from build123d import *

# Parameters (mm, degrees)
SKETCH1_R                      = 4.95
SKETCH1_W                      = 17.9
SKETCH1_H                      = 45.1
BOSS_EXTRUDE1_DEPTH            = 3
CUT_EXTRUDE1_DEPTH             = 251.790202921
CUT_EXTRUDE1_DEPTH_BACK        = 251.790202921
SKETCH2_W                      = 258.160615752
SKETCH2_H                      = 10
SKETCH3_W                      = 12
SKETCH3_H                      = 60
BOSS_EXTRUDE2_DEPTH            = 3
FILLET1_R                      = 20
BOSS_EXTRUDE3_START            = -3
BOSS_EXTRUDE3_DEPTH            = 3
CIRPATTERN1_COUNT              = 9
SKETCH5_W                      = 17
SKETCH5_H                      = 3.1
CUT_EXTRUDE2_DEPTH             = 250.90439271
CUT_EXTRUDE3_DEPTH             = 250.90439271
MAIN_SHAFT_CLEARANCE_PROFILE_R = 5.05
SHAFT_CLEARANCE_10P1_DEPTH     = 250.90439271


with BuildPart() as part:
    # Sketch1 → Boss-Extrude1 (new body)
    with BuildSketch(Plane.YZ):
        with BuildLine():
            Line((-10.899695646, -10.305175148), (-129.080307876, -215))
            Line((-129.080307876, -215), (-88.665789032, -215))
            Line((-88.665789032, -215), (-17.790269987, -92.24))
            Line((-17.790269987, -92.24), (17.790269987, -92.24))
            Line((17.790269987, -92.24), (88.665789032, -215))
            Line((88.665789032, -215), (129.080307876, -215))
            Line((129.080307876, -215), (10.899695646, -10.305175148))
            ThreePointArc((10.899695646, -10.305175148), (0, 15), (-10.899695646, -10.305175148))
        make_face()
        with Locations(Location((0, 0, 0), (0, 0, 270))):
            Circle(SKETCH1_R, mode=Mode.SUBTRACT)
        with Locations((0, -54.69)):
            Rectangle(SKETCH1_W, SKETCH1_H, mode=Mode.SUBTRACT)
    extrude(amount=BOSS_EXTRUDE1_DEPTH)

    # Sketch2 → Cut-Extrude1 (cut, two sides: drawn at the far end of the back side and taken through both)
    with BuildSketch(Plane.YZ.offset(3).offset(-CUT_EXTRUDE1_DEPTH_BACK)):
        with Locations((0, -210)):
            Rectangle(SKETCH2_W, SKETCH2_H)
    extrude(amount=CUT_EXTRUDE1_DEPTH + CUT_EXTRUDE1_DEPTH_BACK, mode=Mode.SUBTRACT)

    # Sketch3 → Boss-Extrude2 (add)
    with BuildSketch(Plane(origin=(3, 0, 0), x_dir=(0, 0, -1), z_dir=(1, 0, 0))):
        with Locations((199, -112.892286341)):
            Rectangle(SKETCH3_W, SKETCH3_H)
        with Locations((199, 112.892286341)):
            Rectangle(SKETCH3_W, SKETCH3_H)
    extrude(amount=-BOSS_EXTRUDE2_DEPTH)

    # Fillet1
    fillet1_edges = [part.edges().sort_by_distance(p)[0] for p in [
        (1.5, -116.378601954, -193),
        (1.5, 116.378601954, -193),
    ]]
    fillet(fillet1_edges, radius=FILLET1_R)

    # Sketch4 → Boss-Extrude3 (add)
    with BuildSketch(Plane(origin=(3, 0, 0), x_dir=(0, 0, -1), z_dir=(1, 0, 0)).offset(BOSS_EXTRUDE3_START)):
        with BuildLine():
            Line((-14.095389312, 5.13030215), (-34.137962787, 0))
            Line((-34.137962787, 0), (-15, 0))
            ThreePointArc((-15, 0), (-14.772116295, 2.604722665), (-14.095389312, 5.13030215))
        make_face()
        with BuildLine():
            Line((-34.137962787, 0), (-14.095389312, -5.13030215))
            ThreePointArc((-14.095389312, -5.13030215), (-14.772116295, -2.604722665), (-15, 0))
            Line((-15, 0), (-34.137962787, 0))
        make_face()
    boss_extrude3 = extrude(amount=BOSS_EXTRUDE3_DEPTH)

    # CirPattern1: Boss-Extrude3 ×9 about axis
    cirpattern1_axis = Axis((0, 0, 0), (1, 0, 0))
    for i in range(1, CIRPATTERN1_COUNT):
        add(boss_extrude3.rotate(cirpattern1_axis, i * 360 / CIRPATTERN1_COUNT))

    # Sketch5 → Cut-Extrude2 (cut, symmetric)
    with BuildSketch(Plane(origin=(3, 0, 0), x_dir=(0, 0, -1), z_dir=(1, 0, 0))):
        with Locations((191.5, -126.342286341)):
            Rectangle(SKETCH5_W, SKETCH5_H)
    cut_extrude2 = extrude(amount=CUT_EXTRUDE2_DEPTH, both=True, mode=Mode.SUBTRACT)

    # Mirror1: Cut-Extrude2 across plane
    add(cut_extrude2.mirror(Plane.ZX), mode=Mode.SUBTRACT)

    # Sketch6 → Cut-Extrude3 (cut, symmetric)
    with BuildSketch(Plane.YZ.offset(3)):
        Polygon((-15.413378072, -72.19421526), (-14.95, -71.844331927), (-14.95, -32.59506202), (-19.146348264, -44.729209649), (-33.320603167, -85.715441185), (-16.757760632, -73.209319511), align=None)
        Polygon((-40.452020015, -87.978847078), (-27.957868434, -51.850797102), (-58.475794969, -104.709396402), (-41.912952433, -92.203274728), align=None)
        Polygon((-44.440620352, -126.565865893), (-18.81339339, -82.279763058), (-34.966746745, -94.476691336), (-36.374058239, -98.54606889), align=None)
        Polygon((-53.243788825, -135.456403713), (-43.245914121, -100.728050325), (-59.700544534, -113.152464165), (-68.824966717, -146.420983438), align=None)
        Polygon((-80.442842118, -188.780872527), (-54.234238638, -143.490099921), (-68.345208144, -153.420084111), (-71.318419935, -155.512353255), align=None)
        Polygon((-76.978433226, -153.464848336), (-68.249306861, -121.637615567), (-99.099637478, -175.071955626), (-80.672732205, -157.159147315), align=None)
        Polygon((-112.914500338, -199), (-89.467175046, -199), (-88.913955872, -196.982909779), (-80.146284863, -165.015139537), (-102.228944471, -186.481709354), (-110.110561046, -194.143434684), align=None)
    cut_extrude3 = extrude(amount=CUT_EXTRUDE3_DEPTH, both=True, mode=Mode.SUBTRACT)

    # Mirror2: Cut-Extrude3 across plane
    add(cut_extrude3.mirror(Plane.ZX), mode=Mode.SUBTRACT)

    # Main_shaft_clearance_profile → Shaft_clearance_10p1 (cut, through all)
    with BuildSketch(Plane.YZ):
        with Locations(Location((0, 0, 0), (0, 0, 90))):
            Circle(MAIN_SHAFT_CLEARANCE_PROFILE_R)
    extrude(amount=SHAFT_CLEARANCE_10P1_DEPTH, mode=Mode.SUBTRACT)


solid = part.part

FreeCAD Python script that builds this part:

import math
import FreeCAD as App
import Part
import Sketcher
from FreeCAD import Vector
Q = App.Units.Quantity


def edges_at(feature, points):
    """Names of the edges that pass closest to the given points."""
    edges = feature.Shape.Edges
    near = lambda p: min(range(len(edges)), key=lambda i: edges[i].distToShape(Part.Vertex(*p))[0])
    return sorted({f"Edge{near(p) + 1}" for p in points})


def add_polygon(sketch, points):
    """Adds a closed chain of lines whose ends are joined by coincident constraints."""
    first, n = sketch.GeometryCount, len(points)
    for a, b in zip(points, points[1:] + points[:1]):
        sketch.addGeometry(Part.LineSegment(App.Vector(*a, 0), App.Vector(*b, 0)), False)
    for i in range(n):
        sketch.addConstraint(Sketcher.Constraint("Coincident", first + i, 2, first + (i + 1) % n, 1))

doc = App.newDocument("Part")
body = doc.addObject("PartDesign::Body", "Body")

sketch1 = body.newObject("Sketcher::SketchObject", "Sketch")
sketch1.AttachmentSupport = (doc.getObject("YZ_Plane"), [""])
sketch1.MapMode = "FlatFace"
sketch1.addGeometry(Part.LineSegment(Vector(-10.899696, -10.305175, 0), Vector(-129.080308, -215, 0)), False)
sketch1.addGeometry(Part.LineSegment(Vector(-129.080308, -215, 0), Vector(-88.665789, -215, 0)), False)
sketch1.addGeometry(Part.LineSegment(Vector(-88.665789, -215, 0), Vector(-17.79027, -92.24, 0)), False)
sketch1.addGeometry(Part.LineSegment(Vector(-17.79027, -92.24, 0), Vector(17.79027, -92.24, 0)), False)
sketch1.addGeometry(Part.LineSegment(Vector(17.79027, -92.24, 0), Vector(88.665789, -215, 0)), False)
sketch1.addGeometry(Part.LineSegment(Vector(88.665789, -215, 0), Vector(129.080308, -215, 0)), False)
sketch1.addGeometry(Part.LineSegment(Vector(129.080308, -215, 0), Vector(10.899696, -10.305175, 0)), False)
sketch1.addGeometry(Part.ArcOfCircle(Part.Circle(Vector(0, 0, 0), Vector(0, 0, 1), 15), math.radians(-43.39402), math.radians(223.39402)), False)
add_polygon(sketch1, [(8.95, -77.24), (-8.95, -77.24), (-8.95, -32.14), (8.95, -32.14)])
sketch1.addGeometry(Part.Circle(Vector(0, 0, 0), Vector(0, 0, 1), 4.95), False)
sketch1.addConstraint(Sketcher.Constraint("Coincident", 0, 2, 1, 1))
sketch1.addConstraint(Sketcher.Constraint("Coincident", 1, 2, 2, 1))
sketch1.addConstraint(Sketcher.Constraint("Coincident", 2, 2, 3, 1))
sketch1.addConstraint(Sketcher.Constraint("Coincident", 3, 2, 4, 1))
sketch1.addConstraint(Sketcher.Constraint("Coincident", 4, 2, 5, 1))
sketch1.addConstraint(Sketcher.Constraint("Coincident", 5, 2, 6, 1))
sketch1.addConstraint(Sketcher.Constraint("Coincident", 6, 2, 7, 1))
sketch1.addConstraint(Sketcher.Constraint("Coincident", 7, 2, 0, 1))
sketch1.addConstraint(Sketcher.Constraint("Horizontal", 1))
sketch1.addConstraint(Sketcher.Constraint("Horizontal", 3))
sketch1.addConstraint(Sketcher.Constraint("Horizontal", 5))
sketch1.addConstraint(Sketcher.Constraint("Horizontal", 8))
sketch1.addConstraint(Sketcher.Constraint("Vertical", 9))
sketch1.addConstraint(Sketcher.Constraint("Horizontal", 10))
sketch1.addConstraint(Sketcher.Constraint("Vertical", 11))
sketch1.addConstraint(Sketcher.Constraint("Coincident", 7, 3, -1, 1))
sketch1.addConstraint(Sketcher.Constraint("Coincident", 12, 3, -1, 1))
sketch1.addConstraint(Sketcher.Constraint("Symmetric", 1, 2, 4, 2, -2))
sketch1.addConstraint(Sketcher.Constraint("Parallel", 0, 2))
sketch1.addConstraint(Sketcher.Constraint("Parallel", 4, 6))
sketch1.addConstraint(Sketcher.Constraint("Horizontal", 6, 2, 7, 2))
sketch1.addConstraint(Sketcher.Constraint("Equal", 1, 5))
sketch1.addConstraint(Sketcher.Constraint("Radius", 7, Q("15 mm")))
sketch1.addConstraint(Sketcher.Constraint("Diameter", 12, Q("9.9 mm")))
sketch1.addConstraint(Sketcher.Constraint("Angle", 0, Q("-120 deg")))
sketch1.addConstraint(Sketcher.Constraint("DistanceX", 8, 2, 8, 1, Q("17.9 mm")))
sketch1.addConstraint(Sketcher.Constraint("DistanceY", 9, 1, 9, 2, Q("45.1 mm")))
sketch1.addConstraint(Sketcher.Constraint("DistanceY", 0, 2, -1, 1, Q("215 mm")))
sketch1.addConstraint(Sketcher.Constraint("DistanceY", 2, 2, 8, 2, Q("15 mm")))
sketch1.addConstraint(Sketcher.Constraint("DistanceY", 2, 2, -1, 1, Q("92.24 mm")))
sketch1.addConstraint(Sketcher.Constraint("DistanceX", 8, 2, -1, 1, Q("8.95 mm")))
sketch1.addConstraint(Sketcher.Constraint("DistanceX", 1, 1, 1, 2, Q("40.414519 mm")))
sketch1.addConstraint(Sketcher.Constraint("DistanceX", 3, 1, 3, 2, Q("35.58054 mm")))
pad1 = body.newObject("PartDesign::Pad", "Pad")
pad1.Profile = sketch1
pad1.Length = 3

sketch2 = body.newObject("Sketcher::SketchObject", "Sketch001")
sketch2.AttachmentSupport = (doc.getObject("YZ_Plane"), [""])
sketch2.MapMode = "FlatFace"
sketch2.AttachmentOffset = App.Placement(Vector(0, 0, 3), App.Rotation())
add_polygon(sketch2, [(-129.080308, -205), (-129.080308, -215), (129.080308, -215), (129.080308, -205)])
sketch2.addConstraint(Sketcher.Constraint("Vertical", 0))
sketch2.addConstraint(Sketcher.Constraint("Horizontal", 1))
sketch2.addConstraint(Sketcher.Constraint("Vertical", 2))
sketch2.addConstraint(Sketcher.Constraint("Horizontal", 3))
sketch2.addConstraint(Sketcher.Constraint("DistanceY", 0, 2, 0, 1, Q("10 mm")))
sketch2.addConstraint(Sketcher.Constraint("DistanceY", 0, 2, -1, 1, Q("215 mm")))
sketch2.addConstraint(Sketcher.Constraint("DistanceX", 1, 1, 1, 2, Q("258.160616 mm")))
sketch2.addConstraint(Sketcher.Constraint("DistanceX", 0, 2, -1, 1, Q("129.080308 mm")))
pocket1 = body.newObject("PartDesign::Pocket", "Pocket")
pocket1.Profile = sketch2
pocket1.Type = "ThroughAll"
pocket1.Midplane = True

sketch3 = body.newObject("Sketcher::SketchObject", "Sketch002")
sketch3.AttachmentSupport = (doc.getObject("YZ_Plane"), [""])
sketch3.MapMode = "FlatFace"
sketch3.AttachmentOffset = App.Placement(Vector(0, 0, 3), App.Rotation())
add_polygon(sketch3, [(-82.892286, -193), (-142.892286, -193), (-142.892286, -205), (-82.892286, -205)])
add_polygon(sketch3, [(142.892286, -193), (82.892286, -193), (82.892286, -205), (142.892286, -205)])
sketch3.addConstraint(Sketcher.Constraint("Horizontal", 0))
sketch3.addConstraint(Sketcher.Constraint("Vertical", 1))
sketch3.addConstraint(Sketcher.Constraint("Horizontal", 2))
sketch3.addConstraint(Sketcher.Constraint("Vertical", 3))
sketch3.addConstraint(Sketcher.Constraint("Horizontal", 4))
sketch3.addConstraint(Sketcher.Constraint("Vertical", 5))
sketch3.addConstraint(Sketcher.Constraint("Horizontal", 6))
sketch3.addConstraint(Sketcher.Constraint("Vertical", 7))
sketch3.addConstraint(Sketcher.Constraint("Symmetric", 3, 2, 4, 2, -2))
sketch3.addConstraint(Sketcher.Constraint("Symmetric", 1, 2, 6, 2, -2))
sketch3.addConstraint(Sketcher.Constraint("DistanceX", 0, 2, 0, 1, Q("60 mm")))
sketch3.addConstraint(Sketcher.Constraint("DistanceY", 1, 2, 1, 1, Q("12 mm")))
sketch3.addConstraint(Sketcher.Constraint("DistanceY", 0, 2, -1, 1, Q("193 mm")))
sketch3.addConstraint(Sketcher.Constraint("DistanceX", 0, 2, -1, 1, Q("142.892286 mm")))
pad2 = body.newObject("PartDesign::Pad", "Pad001")
pad2.Profile = sketch3
pad2.Length = 3
pad2.Reversed = True
doc.recompute()

fillet = body.newObject("PartDesign::Fillet", "Fillet")
fillet.Base = (pad2, edges_at(pad2, [(1.5, -116.379, -193), (1.5, 116.379, -193)]))
fillet.Radius = 20

sketch4 = body.newObject("Sketcher::SketchObject", "Sketch003")
sketch4.AttachmentSupport = (doc.getObject("YZ_Plane"), [""])
sketch4.MapMode = "FlatFace"
sketch4.addGeometry(Part.LineSegment(Vector(5.130302, 14.095389, 0), Vector(0, 34.137963, 0)), False)
sketch4.addGeometry(Part.LineSegment(Vector(0, 34.137963, 0), Vector(-5.130302, 14.095389, 0)), False)
sketch4.addGeometry(Part.ArcOfCircle(Part.Circle(Vector(0, 0, 0), Vector(0, 0, 1), 15), math.radians(90), math.radians(110)), False)
sketch4.addGeometry(Part.ArcOfCircle(Part.Circle(Vector(0, 0, 0), Vector(0, 0, 1), 15), math.radians(70), math.radians(90)), False)
sketch4.addConstraint(Sketcher.Constraint("Coincident", 0, 2, 1, 1))
sketch4.addConstraint(Sketcher.Constraint("Coincident", 1, 2, 2, 2))
sketch4.addConstraint(Sketcher.Constraint("Tangent", 2, 1, 3, 2))
sketch4.addConstraint(Sketcher.Constraint("Coincident", 3, 1, 0, 1))
sketch4.addConstraint(Sketcher.Constraint("Coincident", 2, 3, -1, 1))
sketch4.addConstraint(Sketcher.Constraint("Equal", 2, 3))
sketch4.addConstraint(Sketcher.Constraint("PointOnObject", 0, 2, -2))
sketch4.addConstraint(Sketcher.Constraint("PointOnObject", 2, 1, -2))
sketch4.addConstraint(Sketcher.Constraint("Horizontal", 1, 2, 3, 1))
sketch4.addConstraint(Sketcher.Constraint("Radius", 2, Q("15 mm")))
sketch4.addConstraint(Sketcher.Constraint("Distance", 0, Q("20.688759 mm")))
sketch4.addConstraint(Sketcher.Constraint("DistanceY", -1, 1, 1, 2, Q("14.095389 mm")))
pad3 = body.newObject("PartDesign::Pad", "Pad002")
pad3.Profile = sketch4
pad3.Length = 3
doc.recompute()

polarpattern = body.newObject("PartDesign::PolarPattern", "PolarPattern")
polarpattern.Originals = [pad3]
polarpattern.Axis = (doc.getObject("X_Axis"), [""])
polarpattern.Angle = 360
polarpattern.Occurrences = 9
body.Tip = polarpattern

sketch5 = body.newObject("Sketcher::SketchObject", "Sketch004")
sketch5.AttachmentSupport = (doc.getObject("YZ_Plane"), [""])
sketch5.MapMode = "FlatFace"
sketch5.AttachmentOffset = App.Placement(Vector(0, 0, 3), App.Rotation())
add_polygon(sketch5, [(-124.792286, -183), (-127.892286, -183), (-127.892286, -200), (-124.792286, -200)])
sketch5.addConstraint(Sketcher.Constraint("Horizontal", 0))
sketch5.addConstraint(Sketcher.Constraint("Vertical", 1))
sketch5.addConstraint(Sketcher.Constraint("Horizontal", 2))
sketch5.addConstraint(Sketcher.Constraint("Vertical", 3))
sketch5.addConstraint(Sketcher.Constraint("DistanceY", 1, 2, 1, 1, Q("17 mm")))
sketch5.addConstraint(Sketcher.Constraint("DistanceX", 0, 2, 0, 1, Q("3.1 mm")))
sketch5.addConstraint(Sketcher.Constraint("DistanceY", 0, 2, -1, 1, Q("183 mm")))
sketch5.addConstraint(Sketcher.Constraint("DistanceX", 0, 2, -1, 1, Q("127.892286 mm")))
pocket2 = body.newObject("PartDesign::Pocket", "Pocket001")
pocket2.Profile = sketch5
pocket2.Length = 501.808785
pocket2.Midplane = True
doc.recompute()

mirrored = body.newObject("PartDesign::Mirrored", "Mirrored")
mirrored.Originals = [pocket2]
mirrored.MirrorPlane = (doc.getObject("XZ_Plane"), [""])
body.Tip = mirrored

sketch6 = body.newObject("Sketcher::SketchObject", "Sketch005")
sketch6.AttachmentSupport = (doc.getObject("YZ_Plane"), [""])
sketch6.MapMode = "FlatFace"
sketch6.AttachmentOffset = App.Placement(Vector(0, 0, 3), App.Rotation())
add_polygon(sketch6, [(-15.413378, -72.194215), (-14.95, -71.844332), (-14.95, -32.595062), (-19.146348, -44.72921), (-33.320603, -85.715441), (-16.757761, -73.20932)])
add_polygon(sketch6, [(-40.45202, -87.978847), (-27.957868, -51.850797), (-58.475795, -104.709396), (-41.912952, -92.203275)])
add_polygon(sketch6, [(-44.44062, -126.565866), (-18.813393, -82.279763), (-34.966747, -94.476691), (-36.374058, -98.546069)])
add_polygon(sketch6, [(-53.243789, -135.456404), (-43.245914, -100.72805), (-59.700545, -113.152464), (-68.824967, -146.420983)])
add_polygon(sketch6, [(-80.442842, -188.780873), (-54.234239, -143.4901), (-68.345208, -153.420084), (-71.31842, -155.512353)])
add_polygon(sketch6, [(-76.978433, -153.464848), (-68.249307, -121.637616), (-99.099637, -175.071956), (-80.672732, -157.159147)])
add_polygon(sketch6, [(-112.9145, -199), (-89.467175, -199), (-88.913956, -196.98291), (-80.146285, -165.01514), (-102.228944, -186.481709), (-110.110561, -194.143435)])
sketch6.addConstraint(Sketcher.Constraint("Vertical", 1))
sketch6.addConstraint(Sketcher.Constraint("Horizontal", 26))
sketch6.addConstraint(Sketcher.Constraint("Parallel", 2, 3))
sketch6.addConstraint(Sketcher.Constraint("Parallel", 0, 4))
sketch6.addConstraint(Sketcher.Constraint("Parallel", 4, 5))
sketch6.addConstraint(Sketcher.Constraint("Parallel", 3, 6))
sketch6.addConstraint(Sketcher.Constraint("Parallel", 5, 8))
sketch6.addConstraint(Sketcher.Constraint("Parallel", 6, 9))
sketch6.addConstraint(Sketcher.Constraint("Parallel", 8, 11))
sketch6.addConstraint(Sketcher.Constraint("Parallel", 9, 12))
sketch6.addConstraint(Sketcher.Constraint("Parallel", 13, 14))
sketch6.addConstraint(Sketcher.Constraint("Parallel", 11, 15))
sketch6.addConstraint(Sketcher.Constraint("Parallel", 10, 18))
sketch6.addConstraint(Sketcher.Constraint("Parallel", 17, 19))
sketch6.addConstraint(Sketcher.Constraint("Parallel", 19, 20))
sketch6.addConstraint(Sketcher.Constraint("Parallel", 16, 21))
sketch6.addConstraint(Sketcher.Constraint("Parallel", 21, 22))
sketch6.addConstraint(Sketcher.Constraint("Parallel", 7, 23))
sketch6.addConstraint(Sketcher.Constraint("Parallel", 22, 27))
sketch6.addConstraint(Sketcher.Constraint("Parallel", 27, 28))
sketch6.addConstraint(Sketcher.Constraint("Parallel", 24, 29))
sketch6.addConstraint(Sketcher.Constraint("Parallel", 29, 30))
sketch6.addConstraint(Sketcher.Constraint("Parallel", 23, 31))
sketch6.addConstraint(Sketcher.Constraint("Equal", 4, 8))
sketch6.addConstraint(Sketcher.Constraint("Equal", 16, 21))
sketch6.addConstraint(Sketcher.Constraint("Angle", 7, Q("-120 deg")))
sketch6.addConstraint(Sketcher.Constraint("Angle", 25, Q("45 deg")))
sketch6.addConstraint(Sketcher.Constraint("DistanceY", 26, 2, -1, 1, Q("199 mm")))
sketch6.addConstraint(Sketcher.Constraint("DistanceX", 0, 2, -1, 1, Q("14.95 mm")))
sketch6.addConstraint(Sketcher.Constraint("Distance", 20, Q("3.635599 mm")))
sketch6.addConstraint(Sketcher.Constraint("DistanceY", 1, 1, 1, 2, Q("39.24927 mm")))
sketch6.addConstraint(Sketcher.Constraint("DistanceY", 18, 2, -1, 1, Q("143.4901 mm")))
sketch6.addConstraint(Sketcher.Constraint("DistanceX", 31, 2, -1, 1, Q("112.9145 mm")))
sketch6.addConstraint(Sketcher.Constraint("DistanceY", 7, 2, 6, 2, Q("52.858599 mm")))
sketch6.addConstraint(Sketcher.Constraint("DistanceX", 13, 2, 9, 2, Q("3.9886 mm")))
sketch6.addConstraint(Sketcher.Constraint("DistanceY", 13, 2, 15, 2, Q("13.413402 mm")))
sketch6.addConstraint(Sketcher.Constraint("DistanceY", 19, 2, 16, 2, Q("6.999101 mm")))
sketch6.addConstraint(Sketcher.Constraint("DistanceX", 20, 2, 13, 2, Q("26.8778 mm")))
sketch6.addConstraint(Sketcher.Constraint("DistanceX", 23, 2, 18, 2, Q("44.865399 mm")))
sketch6.addConstraint(Sketcher.Constraint("DistanceX", 24, 2, 25, 2, Q("3.694299 mm")))
sketch6.addConstraint(Sketcher.Constraint("DistanceY", 27, 2, 29, 2, Q("10.5012 mm")))
sketch6.addConstraint(Sketcher.Constraint("Distance", 2, Q("12.839271 mm")))
sketch6.addConstraint(Sketcher.Constraint("Distance", 3, Q("43.367968 mm")))
sketch6.addConstraint(Sketcher.Constraint("Distance", 9, Q("4.469912 mm")))
sketch6.addConstraint(Sketcher.Constraint("Distance", 10, Q("51.166529 mm")))
sketch6.addConstraint(Sketcher.Constraint("Distance", 12, Q("4.305852 mm")))
sketch6.addConstraint(Sketcher.Constraint("Distance", 13, Q("29.15782 mm")))
sketch6.addConstraint(Sketcher.Constraint("Distance", 15, Q("20.618461 mm")))
sketch6.addConstraint(Sketcher.Constraint("Distance", 17, Q("19.052431 mm")))
sketch6.addConstraint(Sketcher.Constraint("Distance", 19, Q("17.254682 mm")))
sketch6.addConstraint(Sketcher.Constraint("Distance", 22, Q("33.002582 mm")))
sketch6.addConstraint(Sketcher.Constraint("Distance", 23, Q("61.700661 mm")))
sketch6.addConstraint(Sketcher.Constraint("Distance", 24, Q("25.698629 mm")))
sketch6.addConstraint(Sketcher.Constraint("Distance", 27, Q("2.091579 mm")))
sketch6.addConstraint(Sketcher.Constraint("Distance", 28, Q("33.148309 mm")))
sketch6.addConstraint(Sketcher.Constraint("Distance", 31, Q("5.607879 mm")))
sketch6.addConstraint(Sketcher.Constraint("DistanceY", 0, 2, -1, 1, Q("71.844332 mm")))
sketch6.addConstraint(Sketcher.Constraint("DistanceX", 2, 2, -1, 1, Q("19.146348 mm")))
sketch6.addConstraint(Sketcher.Constraint("DistanceX", 5, 2, -1, 1, Q("15.413378 mm")))
sketch6.addConstraint(Sketcher.Constraint("DistanceX", 6, 2, -1, 1, Q("27.957868 mm")))
sketch6.addConstraint(Sketcher.Constraint("DistanceY", 11, 2, -1, 1, Q("94.476691 mm")))
sketch6.addConstraint(Sketcher.Constraint("DistanceX", 17, 2, -1, 1, Q("53.243789 mm")))
sketch6.addConstraint(Sketcher.Constraint("DistanceY", 25, 2, -1, 1, Q("153.464848 mm")))
sketch6.addConstraint(Sketcher.Constraint("DistanceY", 5, 2, 6, 2, Q("20.343418 mm")))
pocket3 = body.newObject("PartDesign::Pocket", "Pocket002")
pocket3.Profile = sketch6
pocket3.Length = 501.808785
pocket3.Midplane = True
doc.recompute()

mirrored2 = body.newObject("PartDesign::Mirrored", "Mirrored001")
mirrored2.Originals = [pocket3]
mirrored2.MirrorPlane = (doc.getObject("XZ_Plane"), [""])
body.Tip = mirrored2

sketch7 = body.newObject("Sketcher::SketchObject", "Sketch006")
sketch7.AttachmentSupport = (doc.getObject("YZ_Plane"), [""])
sketch7.MapMode = "FlatFace"
sketch7.addGeometry(Part.Circle(Vector(0, 0, 0), Vector(0, 0, 1), 5.05), False)
sketch7.addConstraint(Sketcher.Constraint("Coincident", 0, 3, -1, 1))
sketch7.addConstraint(Sketcher.Constraint("Diameter", 0, Q("10.1 mm")))
pocket4 = body.newObject("PartDesign::Pocket", "Pocket003")
pocket4.Profile = sketch7
pocket4.Type = "ThroughAll"
pocket4.Reversed = True

doc.recompute()
